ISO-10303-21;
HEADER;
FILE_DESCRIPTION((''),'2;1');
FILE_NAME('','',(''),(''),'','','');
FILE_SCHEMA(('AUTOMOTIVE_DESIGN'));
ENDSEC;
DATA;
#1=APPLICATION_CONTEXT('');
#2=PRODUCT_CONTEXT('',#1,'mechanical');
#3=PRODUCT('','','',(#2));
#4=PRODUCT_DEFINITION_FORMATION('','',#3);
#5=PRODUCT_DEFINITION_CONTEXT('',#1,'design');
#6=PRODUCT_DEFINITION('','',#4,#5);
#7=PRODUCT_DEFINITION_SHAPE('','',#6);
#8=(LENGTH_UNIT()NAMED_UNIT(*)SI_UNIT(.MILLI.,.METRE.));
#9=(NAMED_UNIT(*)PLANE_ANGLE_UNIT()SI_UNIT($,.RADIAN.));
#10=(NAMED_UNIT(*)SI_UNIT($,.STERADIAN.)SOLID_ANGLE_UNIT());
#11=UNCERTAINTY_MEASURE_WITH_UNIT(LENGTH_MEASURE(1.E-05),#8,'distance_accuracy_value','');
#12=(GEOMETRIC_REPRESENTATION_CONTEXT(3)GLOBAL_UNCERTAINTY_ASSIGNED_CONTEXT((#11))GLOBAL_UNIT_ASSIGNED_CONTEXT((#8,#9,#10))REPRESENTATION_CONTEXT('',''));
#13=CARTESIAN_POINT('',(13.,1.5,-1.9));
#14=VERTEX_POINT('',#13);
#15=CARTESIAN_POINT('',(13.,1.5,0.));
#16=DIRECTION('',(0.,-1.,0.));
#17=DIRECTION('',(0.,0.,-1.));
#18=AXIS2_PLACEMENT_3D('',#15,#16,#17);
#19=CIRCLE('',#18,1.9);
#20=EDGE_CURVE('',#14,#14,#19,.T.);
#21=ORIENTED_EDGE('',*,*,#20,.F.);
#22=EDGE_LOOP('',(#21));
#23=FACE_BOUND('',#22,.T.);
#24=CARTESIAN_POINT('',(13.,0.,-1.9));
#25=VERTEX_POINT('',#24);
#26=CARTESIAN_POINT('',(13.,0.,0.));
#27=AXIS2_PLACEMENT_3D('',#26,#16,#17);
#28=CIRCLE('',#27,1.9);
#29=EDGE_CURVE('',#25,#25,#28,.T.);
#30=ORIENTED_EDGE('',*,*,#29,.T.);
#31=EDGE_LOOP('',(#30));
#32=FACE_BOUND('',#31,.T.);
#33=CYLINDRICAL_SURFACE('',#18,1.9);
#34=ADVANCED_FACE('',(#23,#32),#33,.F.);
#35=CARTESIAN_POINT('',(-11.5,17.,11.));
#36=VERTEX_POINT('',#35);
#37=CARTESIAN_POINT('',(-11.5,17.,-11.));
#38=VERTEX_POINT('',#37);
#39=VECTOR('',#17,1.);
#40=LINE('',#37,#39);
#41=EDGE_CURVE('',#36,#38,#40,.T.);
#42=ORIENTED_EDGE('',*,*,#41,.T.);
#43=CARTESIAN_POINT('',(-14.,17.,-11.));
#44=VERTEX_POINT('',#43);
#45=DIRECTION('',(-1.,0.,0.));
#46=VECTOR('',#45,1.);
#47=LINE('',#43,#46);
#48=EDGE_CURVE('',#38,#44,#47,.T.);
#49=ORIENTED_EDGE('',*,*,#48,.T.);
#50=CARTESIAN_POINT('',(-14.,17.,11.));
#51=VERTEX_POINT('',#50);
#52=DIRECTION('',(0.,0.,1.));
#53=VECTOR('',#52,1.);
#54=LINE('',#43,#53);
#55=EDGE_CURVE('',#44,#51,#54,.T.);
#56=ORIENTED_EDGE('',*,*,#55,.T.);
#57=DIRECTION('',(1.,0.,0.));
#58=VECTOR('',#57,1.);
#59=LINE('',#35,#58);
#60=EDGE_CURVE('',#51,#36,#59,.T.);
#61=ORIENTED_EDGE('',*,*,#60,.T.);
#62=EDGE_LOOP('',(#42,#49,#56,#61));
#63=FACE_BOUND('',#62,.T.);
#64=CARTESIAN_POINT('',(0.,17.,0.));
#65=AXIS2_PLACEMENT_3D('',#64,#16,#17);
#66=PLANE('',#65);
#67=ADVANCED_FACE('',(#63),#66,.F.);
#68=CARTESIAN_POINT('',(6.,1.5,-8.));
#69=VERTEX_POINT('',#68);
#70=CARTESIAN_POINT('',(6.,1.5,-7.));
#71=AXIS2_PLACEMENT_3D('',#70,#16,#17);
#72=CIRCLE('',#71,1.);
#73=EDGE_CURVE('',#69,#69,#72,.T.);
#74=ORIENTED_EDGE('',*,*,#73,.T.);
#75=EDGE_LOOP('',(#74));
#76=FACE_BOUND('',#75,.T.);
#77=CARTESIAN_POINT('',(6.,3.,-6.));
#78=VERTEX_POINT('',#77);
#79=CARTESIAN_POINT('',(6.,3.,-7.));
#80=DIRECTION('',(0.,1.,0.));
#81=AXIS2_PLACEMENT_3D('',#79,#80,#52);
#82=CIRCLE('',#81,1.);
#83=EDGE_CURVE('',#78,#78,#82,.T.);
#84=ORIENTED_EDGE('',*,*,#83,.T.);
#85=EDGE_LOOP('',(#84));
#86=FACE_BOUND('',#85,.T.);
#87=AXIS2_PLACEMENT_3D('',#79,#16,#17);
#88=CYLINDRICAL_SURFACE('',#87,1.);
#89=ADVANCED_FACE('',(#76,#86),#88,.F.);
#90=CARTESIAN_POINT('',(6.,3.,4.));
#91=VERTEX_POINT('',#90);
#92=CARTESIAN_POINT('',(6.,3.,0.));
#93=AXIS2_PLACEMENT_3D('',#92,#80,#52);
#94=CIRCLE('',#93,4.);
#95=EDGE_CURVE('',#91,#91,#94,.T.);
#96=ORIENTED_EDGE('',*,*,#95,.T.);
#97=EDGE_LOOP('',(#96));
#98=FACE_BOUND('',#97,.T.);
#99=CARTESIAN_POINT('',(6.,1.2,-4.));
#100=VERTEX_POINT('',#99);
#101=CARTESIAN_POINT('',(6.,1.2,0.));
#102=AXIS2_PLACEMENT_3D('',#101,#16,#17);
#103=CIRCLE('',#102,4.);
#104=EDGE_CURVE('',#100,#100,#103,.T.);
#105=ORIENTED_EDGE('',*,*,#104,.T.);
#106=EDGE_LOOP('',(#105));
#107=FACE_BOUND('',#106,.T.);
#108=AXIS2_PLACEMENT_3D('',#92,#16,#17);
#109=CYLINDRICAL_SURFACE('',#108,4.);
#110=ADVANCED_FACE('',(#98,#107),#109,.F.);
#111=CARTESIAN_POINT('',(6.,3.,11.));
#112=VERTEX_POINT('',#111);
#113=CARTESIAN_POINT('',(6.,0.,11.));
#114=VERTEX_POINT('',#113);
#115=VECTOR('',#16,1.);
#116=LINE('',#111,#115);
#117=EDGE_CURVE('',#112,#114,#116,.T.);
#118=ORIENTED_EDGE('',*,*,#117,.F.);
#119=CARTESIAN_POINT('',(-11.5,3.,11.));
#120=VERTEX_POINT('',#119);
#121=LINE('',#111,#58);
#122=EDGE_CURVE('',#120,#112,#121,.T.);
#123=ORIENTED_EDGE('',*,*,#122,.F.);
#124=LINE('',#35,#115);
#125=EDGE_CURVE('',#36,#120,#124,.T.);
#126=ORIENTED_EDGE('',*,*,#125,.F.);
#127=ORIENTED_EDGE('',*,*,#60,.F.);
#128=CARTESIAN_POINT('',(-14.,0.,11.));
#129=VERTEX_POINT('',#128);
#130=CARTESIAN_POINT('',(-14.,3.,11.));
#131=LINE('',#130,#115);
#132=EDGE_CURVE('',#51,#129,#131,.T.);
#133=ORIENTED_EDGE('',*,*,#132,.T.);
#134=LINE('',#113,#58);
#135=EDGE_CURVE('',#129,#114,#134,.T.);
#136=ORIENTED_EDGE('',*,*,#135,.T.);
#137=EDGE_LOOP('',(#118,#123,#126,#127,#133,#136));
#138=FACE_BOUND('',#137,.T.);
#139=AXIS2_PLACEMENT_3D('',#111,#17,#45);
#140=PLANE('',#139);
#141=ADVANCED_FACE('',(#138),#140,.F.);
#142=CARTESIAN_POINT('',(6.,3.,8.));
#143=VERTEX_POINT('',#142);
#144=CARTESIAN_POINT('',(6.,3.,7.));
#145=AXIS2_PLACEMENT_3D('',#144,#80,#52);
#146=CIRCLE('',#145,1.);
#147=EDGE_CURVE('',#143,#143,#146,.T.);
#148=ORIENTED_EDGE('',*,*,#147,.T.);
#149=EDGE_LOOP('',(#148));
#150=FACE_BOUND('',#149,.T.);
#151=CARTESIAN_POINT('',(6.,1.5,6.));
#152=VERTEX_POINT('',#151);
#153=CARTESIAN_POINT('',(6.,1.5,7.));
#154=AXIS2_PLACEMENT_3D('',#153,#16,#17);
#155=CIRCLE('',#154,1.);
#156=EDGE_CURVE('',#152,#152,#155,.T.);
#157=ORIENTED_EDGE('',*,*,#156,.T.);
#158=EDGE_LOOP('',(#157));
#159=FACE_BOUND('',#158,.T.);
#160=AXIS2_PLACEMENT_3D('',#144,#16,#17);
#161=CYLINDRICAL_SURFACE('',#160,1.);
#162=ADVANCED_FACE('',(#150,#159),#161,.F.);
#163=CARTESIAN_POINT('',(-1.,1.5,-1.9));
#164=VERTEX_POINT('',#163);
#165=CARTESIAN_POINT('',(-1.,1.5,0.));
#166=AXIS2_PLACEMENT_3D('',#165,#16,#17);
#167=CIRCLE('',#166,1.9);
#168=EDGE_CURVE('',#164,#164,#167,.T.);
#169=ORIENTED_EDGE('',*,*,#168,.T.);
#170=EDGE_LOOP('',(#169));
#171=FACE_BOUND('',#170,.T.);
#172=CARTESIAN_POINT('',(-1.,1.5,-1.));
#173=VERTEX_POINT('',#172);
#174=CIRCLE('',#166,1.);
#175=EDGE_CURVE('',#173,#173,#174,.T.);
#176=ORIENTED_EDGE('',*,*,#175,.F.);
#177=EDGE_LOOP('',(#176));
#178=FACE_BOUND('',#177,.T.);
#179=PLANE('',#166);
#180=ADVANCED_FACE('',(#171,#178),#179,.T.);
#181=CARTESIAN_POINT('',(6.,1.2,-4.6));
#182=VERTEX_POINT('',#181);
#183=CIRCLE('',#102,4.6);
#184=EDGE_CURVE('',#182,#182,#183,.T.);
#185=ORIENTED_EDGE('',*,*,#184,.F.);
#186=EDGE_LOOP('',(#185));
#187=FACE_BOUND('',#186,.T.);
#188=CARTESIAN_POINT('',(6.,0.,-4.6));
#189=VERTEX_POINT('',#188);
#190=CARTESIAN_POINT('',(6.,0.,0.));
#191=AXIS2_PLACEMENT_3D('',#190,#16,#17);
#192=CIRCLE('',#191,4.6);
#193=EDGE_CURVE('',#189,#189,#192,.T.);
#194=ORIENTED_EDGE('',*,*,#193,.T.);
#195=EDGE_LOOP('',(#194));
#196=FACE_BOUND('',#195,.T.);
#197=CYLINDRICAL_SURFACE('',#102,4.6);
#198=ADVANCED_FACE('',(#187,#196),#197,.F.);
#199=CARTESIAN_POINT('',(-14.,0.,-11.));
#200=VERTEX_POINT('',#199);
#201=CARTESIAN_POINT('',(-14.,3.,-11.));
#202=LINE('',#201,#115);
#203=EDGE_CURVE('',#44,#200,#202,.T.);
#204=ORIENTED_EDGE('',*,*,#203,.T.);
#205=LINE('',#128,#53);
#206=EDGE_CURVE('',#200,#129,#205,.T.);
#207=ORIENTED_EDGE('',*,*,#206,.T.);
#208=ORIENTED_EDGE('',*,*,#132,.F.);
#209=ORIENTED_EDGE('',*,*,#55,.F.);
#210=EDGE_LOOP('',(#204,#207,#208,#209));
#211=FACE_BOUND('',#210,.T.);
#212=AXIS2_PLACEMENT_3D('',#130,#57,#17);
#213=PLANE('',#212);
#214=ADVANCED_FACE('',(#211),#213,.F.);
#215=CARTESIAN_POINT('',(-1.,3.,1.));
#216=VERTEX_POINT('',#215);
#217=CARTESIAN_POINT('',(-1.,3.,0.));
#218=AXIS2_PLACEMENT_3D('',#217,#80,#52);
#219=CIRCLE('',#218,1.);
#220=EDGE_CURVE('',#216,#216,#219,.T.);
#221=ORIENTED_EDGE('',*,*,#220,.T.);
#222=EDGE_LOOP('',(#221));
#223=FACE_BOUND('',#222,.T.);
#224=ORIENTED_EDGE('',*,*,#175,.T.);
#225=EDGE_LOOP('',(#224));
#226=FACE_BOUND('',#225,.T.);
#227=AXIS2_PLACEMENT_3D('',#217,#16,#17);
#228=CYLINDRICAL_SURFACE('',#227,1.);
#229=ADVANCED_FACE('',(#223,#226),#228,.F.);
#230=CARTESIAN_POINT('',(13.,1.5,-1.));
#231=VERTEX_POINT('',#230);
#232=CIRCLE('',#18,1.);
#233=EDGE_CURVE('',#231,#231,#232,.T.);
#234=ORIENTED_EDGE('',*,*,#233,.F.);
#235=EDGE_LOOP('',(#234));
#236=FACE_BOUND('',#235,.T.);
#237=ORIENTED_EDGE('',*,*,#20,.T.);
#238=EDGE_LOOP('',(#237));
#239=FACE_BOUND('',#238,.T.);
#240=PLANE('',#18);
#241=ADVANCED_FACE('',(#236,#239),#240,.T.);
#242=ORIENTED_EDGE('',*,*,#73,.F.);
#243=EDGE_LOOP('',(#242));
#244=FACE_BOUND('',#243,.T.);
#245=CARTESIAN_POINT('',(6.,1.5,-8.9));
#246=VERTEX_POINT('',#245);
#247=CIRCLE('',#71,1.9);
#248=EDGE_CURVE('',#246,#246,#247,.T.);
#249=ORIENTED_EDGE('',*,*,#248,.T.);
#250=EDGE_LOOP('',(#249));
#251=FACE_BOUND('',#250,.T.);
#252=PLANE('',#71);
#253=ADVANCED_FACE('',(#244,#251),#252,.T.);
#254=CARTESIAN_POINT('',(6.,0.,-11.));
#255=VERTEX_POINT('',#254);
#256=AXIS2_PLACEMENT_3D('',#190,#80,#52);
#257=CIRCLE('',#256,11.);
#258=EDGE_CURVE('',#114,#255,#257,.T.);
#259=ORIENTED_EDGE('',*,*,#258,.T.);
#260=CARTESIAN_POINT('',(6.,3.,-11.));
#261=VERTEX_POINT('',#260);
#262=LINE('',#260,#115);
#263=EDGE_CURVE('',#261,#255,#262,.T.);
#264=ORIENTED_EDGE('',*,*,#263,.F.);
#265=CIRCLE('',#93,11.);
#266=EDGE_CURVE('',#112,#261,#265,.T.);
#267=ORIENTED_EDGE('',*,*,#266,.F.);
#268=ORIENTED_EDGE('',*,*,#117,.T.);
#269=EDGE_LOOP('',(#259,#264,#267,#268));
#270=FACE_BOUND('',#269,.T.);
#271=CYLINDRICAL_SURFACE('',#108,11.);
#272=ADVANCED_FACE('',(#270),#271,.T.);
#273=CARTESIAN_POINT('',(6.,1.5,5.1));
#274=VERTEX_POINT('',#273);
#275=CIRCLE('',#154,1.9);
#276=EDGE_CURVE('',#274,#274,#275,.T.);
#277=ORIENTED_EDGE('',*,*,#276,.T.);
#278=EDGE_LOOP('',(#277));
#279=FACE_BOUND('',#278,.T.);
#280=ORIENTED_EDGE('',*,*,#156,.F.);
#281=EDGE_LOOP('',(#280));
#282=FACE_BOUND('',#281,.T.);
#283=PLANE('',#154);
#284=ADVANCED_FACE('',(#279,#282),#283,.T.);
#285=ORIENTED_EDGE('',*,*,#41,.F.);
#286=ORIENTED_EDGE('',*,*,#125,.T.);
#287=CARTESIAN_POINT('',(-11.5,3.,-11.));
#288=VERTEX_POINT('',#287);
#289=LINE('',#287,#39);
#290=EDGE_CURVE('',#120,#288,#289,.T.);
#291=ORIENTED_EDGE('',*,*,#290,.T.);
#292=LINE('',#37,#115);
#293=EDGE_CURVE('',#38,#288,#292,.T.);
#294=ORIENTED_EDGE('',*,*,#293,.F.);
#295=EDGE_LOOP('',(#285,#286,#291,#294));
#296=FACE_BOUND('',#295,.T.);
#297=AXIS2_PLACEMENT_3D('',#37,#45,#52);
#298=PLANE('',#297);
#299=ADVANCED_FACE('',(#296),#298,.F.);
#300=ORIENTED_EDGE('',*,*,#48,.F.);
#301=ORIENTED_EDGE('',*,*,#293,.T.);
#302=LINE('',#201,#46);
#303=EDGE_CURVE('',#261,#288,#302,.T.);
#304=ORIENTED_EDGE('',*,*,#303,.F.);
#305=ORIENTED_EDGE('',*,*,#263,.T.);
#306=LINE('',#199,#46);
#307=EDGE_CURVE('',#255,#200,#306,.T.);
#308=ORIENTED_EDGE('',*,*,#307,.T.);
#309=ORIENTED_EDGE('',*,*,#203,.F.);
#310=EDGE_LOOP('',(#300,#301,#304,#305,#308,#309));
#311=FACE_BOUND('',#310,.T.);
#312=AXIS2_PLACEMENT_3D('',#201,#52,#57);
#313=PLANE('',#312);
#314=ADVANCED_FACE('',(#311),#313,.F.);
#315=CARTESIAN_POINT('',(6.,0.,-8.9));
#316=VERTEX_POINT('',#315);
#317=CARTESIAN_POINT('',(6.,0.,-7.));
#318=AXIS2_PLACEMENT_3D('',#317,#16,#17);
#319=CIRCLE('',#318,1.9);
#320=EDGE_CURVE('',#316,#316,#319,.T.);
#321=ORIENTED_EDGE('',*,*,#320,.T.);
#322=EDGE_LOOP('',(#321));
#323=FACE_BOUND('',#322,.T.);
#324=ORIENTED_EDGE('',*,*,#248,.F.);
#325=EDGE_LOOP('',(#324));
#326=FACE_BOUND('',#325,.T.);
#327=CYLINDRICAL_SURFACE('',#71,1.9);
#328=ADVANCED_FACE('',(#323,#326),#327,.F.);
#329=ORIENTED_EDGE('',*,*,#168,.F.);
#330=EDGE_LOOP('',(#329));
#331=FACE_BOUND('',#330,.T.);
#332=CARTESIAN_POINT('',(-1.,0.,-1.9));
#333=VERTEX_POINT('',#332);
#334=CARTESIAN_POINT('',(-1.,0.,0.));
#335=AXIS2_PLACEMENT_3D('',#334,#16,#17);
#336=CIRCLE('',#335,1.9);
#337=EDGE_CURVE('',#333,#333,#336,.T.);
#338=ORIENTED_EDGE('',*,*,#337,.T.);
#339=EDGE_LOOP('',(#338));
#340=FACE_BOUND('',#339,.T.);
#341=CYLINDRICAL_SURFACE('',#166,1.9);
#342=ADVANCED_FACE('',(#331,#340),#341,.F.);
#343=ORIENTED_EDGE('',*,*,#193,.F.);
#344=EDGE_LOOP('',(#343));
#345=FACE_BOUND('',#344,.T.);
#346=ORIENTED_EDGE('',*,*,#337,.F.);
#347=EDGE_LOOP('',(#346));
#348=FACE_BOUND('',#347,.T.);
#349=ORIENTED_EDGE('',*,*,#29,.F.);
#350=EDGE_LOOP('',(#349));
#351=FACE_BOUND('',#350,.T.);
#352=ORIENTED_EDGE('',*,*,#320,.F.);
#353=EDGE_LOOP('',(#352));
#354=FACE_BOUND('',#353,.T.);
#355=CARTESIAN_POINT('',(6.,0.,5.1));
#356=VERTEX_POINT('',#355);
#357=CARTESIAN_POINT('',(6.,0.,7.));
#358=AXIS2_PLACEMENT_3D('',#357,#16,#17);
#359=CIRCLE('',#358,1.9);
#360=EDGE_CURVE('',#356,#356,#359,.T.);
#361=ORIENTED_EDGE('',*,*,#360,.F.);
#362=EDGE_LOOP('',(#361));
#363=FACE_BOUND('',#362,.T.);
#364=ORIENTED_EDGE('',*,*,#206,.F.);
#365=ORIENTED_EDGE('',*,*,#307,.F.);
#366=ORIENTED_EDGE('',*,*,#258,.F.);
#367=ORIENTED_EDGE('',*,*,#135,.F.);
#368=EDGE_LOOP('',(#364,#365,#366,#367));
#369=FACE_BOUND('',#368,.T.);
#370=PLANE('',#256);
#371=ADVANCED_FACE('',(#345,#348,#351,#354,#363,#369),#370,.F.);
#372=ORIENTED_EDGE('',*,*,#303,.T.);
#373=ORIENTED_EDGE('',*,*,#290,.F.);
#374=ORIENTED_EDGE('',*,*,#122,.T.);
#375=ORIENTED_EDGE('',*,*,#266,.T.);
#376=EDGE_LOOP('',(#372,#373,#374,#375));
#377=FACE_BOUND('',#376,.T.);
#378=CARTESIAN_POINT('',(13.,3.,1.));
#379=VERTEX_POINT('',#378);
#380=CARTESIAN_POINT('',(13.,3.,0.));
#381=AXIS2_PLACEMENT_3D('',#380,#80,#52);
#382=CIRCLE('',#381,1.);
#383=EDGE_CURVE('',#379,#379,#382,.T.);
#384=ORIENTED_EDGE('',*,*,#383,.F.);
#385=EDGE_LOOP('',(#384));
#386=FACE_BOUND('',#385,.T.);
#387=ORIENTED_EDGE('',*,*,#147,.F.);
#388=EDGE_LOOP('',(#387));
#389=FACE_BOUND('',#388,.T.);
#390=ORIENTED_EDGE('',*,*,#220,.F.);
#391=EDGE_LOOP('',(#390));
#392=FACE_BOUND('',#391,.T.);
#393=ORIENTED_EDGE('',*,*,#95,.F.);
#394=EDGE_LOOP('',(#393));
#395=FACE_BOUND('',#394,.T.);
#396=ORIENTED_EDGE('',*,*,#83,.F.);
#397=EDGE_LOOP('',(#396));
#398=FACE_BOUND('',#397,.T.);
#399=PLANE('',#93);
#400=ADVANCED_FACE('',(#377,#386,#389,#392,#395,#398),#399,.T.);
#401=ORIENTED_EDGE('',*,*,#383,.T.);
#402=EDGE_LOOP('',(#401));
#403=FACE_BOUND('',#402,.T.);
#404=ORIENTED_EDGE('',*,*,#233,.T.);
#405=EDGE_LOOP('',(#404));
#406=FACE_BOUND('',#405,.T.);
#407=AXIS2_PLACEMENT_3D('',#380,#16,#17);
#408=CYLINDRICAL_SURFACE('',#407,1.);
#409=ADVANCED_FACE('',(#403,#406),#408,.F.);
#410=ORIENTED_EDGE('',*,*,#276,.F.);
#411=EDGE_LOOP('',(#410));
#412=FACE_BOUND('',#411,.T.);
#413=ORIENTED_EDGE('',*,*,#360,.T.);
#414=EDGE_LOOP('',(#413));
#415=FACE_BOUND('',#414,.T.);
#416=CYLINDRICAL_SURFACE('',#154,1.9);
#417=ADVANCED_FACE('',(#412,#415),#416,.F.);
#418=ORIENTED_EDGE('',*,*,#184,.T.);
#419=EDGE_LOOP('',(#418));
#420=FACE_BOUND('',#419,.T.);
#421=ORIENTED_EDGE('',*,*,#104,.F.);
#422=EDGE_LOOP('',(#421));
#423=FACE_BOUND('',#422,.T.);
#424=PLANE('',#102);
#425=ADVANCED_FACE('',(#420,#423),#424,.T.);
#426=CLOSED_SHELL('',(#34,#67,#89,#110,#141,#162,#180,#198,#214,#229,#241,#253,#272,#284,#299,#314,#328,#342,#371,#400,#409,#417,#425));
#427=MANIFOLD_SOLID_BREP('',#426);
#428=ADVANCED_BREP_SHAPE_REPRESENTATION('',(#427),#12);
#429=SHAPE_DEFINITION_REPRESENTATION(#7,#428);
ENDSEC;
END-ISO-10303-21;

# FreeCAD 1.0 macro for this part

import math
import FreeCAD as App
import Part
import Sketcher
from FreeCAD import Vector

doc = App.newDocument("Part")
body = doc.addObject("PartDesign::Body", "Body")

# Sketch on XZ plane
sketch1 = doc.addObject("Sketcher::SketchObject", "Sketch")
body.addObject(sketch1)
sketch1.AttachmentSupport = (doc.XZ_Plane, [""])
sketch1.MapMode = "FlatFace"
sketch1.addGeometry(Part.LineSegment(Vector(-14, -11, 0), Vector(-14, 11, 0)), False)
sketch1.addGeometry(Part.LineSegment(Vector(-14, 11, 0), Vector(6, 11, 0)), False)
sketch1.addGeometry(Part.ArcOfCircle(Part.Circle(Vector(6, 0, 0), Vector(0, 0, 1), 11), math.radians(-90), math.radians(90)), False)
sketch1.addGeometry(Part.LineSegment(Vector(6, -11, 0), Vector(-14, -11, 0)), False)
sketch1.addGeometry(Part.Circle(Vector(6, 7, 0), Vector(0, 0, 1), 1), False)
sketch1.addGeometry(Part.Circle(Vector(13, 0, 0), Vector(0, 0, 1), 1), False)
sketch1.addGeometry(Part.Circle(Vector(6, 0, 0), Vector(0, 0, 1), 4), False)
sketch1.addGeometry(Part.Circle(Vector(-1, 0, 0), Vector(0, 0, 1), 1), False)
sketch1.addGeometry(Part.Circle(Vector(6, -7, 0), Vector(0, 0, 1), 1), False)
sketch1.addConstraint(Sketcher.Constraint("Coincident", 0, 2, 1, 1))
sketch1.addConstraint(Sketcher.Constraint("Tangent", 1, 2, 2, 2))
sketch1.addConstraint(Sketcher.Constraint("Tangent", 2, 1, 3, 1))
sketch1.addConstraint(Sketcher.Constraint("Coincident", 3, 2, 0, 1))
sketch1.addConstraint(Sketcher.Constraint("Vertical", 0))
sketch1.addConstraint(Sketcher.Constraint("Horizontal", 1))
sketch1.addConstraint(Sketcher.Constraint("Horizontal", 3))
sketch1.addConstraint(Sketcher.Constraint("Coincident", 6, 3, 2, 3))
sketch1.addConstraint(Sketcher.Constraint("Equal", 4, 5))
sketch1.addConstraint(Sketcher.Constraint("Equal", 5, 7))
sketch1.addConstraint(Sketcher.Constraint("Equal", 7, 8))
sketch1.addConstraint(Sketcher.Constraint("Symmetric", 4, 3, 8, 3, -1))
sketch1.addConstraint(Sketcher.Constraint("PointOnObject", 2, 3, -1))
sketch1.addConstraint(Sketcher.Constraint("PointOnObject", 5, 3, -1))
sketch1.addConstraint(Sketcher.Constraint("PointOnObject", 7, 3, -1))
sketch1.addConstraint(Sketcher.Constraint("Vertical", 2, 3, 4, 3))
sketch1.addConstraint(Sketcher.Constraint("Diameter", 4, 2.0))
sketch1.addConstraint(Sketcher.Constraint("Diameter", 6, 8.0))
sketch1.addConstraint(Sketcher.Constraint("Radius", 2, 11.0))
sketch1.addConstraint(Sketcher.Constraint("DistanceX", 1, 1, 1, 2, 20.0))
sketch1.addConstraint(Sketcher.Constraint("DistanceX", -1, 1, 2, 3, 6.0))
sketch1.addConstraint(Sketcher.Constraint("DistanceY", -1, 1, 4, 3, 7.0))
sketch1.addConstraint(Sketcher.Constraint("DistanceX", -1, 1, 5, 3, 13.0))
sketch1.addConstraint(Sketcher.Constraint("DistanceX", 7, 3, -1, 1, 1.0))
pad1 = doc.addObject("PartDesign::Pad", "Pad")
body.addObject(pad1)
pad1.Profile = sketch1
pad1.Length = 3
pad1.Reversed = True

# Sketch on XZ plane
sketch2 = doc.addObject("Sketcher::SketchObject", "Sketch001")
body.addObject(sketch2)
sketch2.AttachmentSupport = (doc.XZ_Plane, [""])
sketch2.MapMode = "FlatFace"
sketch2.AttachmentOffset = App.Placement(Vector(0, 0, -3), App.Rotation())
sketch2.addGeometry(Part.LineSegment(Vector(-14, -11, 0), Vector(-14, 11, 0)), False)
sketch2.addGeometry(Part.LineSegment(Vector(-14, 11, 0), Vector(-11.5, 11, 0)), False)
sketch2.addGeometry(Part.LineSegment(Vector(-11.5, 11, 0), Vector(-11.5, -11, 0)), False)
sketch2.addGeometry(Part.LineSegment(Vector(-11.5, -11, 0), Vector(-14, -11, 0)), False)
sketch2.addConstraint(Sketcher.Constraint("Coincident", 0, 2, 1, 1))
sketch2.addConstraint(Sketcher.Constraint("Coincident", 1, 2, 2, 1))
sketch2.addConstraint(Sketcher.Constraint("Coincident", 2, 2, 3, 1))
sketch2.addConstraint(Sketcher.Constraint("Coincident", 3, 2, 0, 1))
sketch2.addConstraint(Sketcher.Constraint("Vertical", 0))
sketch2.addConstraint(Sketcher.Constraint("Horizontal", 1))
sketch2.addConstraint(Sketcher.Constraint("Vertical", 2))
sketch2.addConstraint(Sketcher.Constraint("Horizontal", 3))
sketch2.addConstraint(Sketcher.Constraint("DistanceY", 0, 1, 0, 2, 22.0))
sketch2.addConstraint(Sketcher.Constraint("DistanceX", 1, 1, 1, 2, 2.5))
sketch2.addConstraint(Sketcher.Constraint("DistanceX", 0, 2, -1, 1, 14.0))
sketch2.addConstraint(Sketcher.Constraint("DistanceY", -1, 1, 0, 2, 11.0))
pad2 = doc.addObject("PartDesign::Pad", "Pad001")
body.addObject(pad2)
pad2.Profile = sketch2
pad2.Length = 14
pad2.Reversed = True

# Sketch on XZ plane
sketch3 = doc.addObject("Sketcher::SketchObject", "Sketch002")
body.addObject(sketch3)
sketch3.AttachmentSupport = (doc.XZ_Plane, [""])
sketch3.MapMode = "FlatFace"
sketch3.addGeometry(Part.Circle(Vector(6, 0, 0), Vector(0, 0, 1), 4.6), False)
sketch3.addConstraint(Sketcher.Constraint("PointOnObject", 0, 3, -1))
sketch3.addConstraint(Sketcher.Constraint("Diameter", 0, 9.2))
sketch3.addConstraint(Sketcher.Constraint("DistanceX", -1, 1, 0, 3, 6.0))
pocket1 = doc.addObject("PartDesign::Pocket", "Pocket")
body.addObject(pocket1)
pocket1.Profile = sketch3
pocket1.Length = 1.2

# Sketch on XZ plane
sketch4 = doc.addObject("Sketcher::SketchObject", "Sketch003")
body.addObject(sketch4)
sketch4.AttachmentSupport = (doc.XZ_Plane, [""])
sketch4.MapMode = "FlatFace"
sketch4.addGeometry(Part.Circle(Vector(13, 0, 0), Vector(0, 0, 1), 1.9), False)
sketch4.addGeometry(Part.Circle(Vector(6, -7, 0), Vector(0, 0, 1), 1.9), False)
sketch4.addGeometry(Part.Circle(Vector(-1, 0, 0), Vector(0, 0, 1), 1.9), False)
sketch4.addGeometry(Part.Circle(Vector(6, 7, 0), Vector(0, 0, 1), 1.9), False)
sketch4.addConstraint(Sketcher.Constraint("Equal", 0, 1))
sketch4.addConstraint(Sketcher.Constraint("Equal", 1, 2))
sketch4.addConstraint(Sketcher.Constraint("Equal", 2, 3))
sketch4.addConstraint(Sketcher.Constraint("Symmetric", 1, 3, 3, 3, -1))
sketch4.addConstraint(Sketcher.Constraint("PointOnObject", 0, 3, -1))
sketch4.addConstraint(Sketcher.Constraint("PointOnObject", 2, 3, -1))
sketch4.addConstraint(Sketcher.Constraint("Diameter", 0, 3.8))
sketch4.addConstraint(Sketcher.Constraint("DistanceX", -1, 1, 0, 3, 13.0))
sketch4.addConstraint(Sketcher.Constraint("DistanceX", -1, 1, 1, 3, 6.0))
sketch4.addConstraint(Sketcher.Constraint("DistanceY", 1, 3, -1, 1, 7.0))
sketch4.addConstraint(Sketcher.Constraint("DistanceX", 2, 3, -1, 1, 1.0))
pocket2 = doc.addObject("PartDesign::Pocket", "Pocket001")
body.addObject(pocket2)
pocket2.Profile = sketch4
pocket2.Length = 1.5

doc.recompute()
